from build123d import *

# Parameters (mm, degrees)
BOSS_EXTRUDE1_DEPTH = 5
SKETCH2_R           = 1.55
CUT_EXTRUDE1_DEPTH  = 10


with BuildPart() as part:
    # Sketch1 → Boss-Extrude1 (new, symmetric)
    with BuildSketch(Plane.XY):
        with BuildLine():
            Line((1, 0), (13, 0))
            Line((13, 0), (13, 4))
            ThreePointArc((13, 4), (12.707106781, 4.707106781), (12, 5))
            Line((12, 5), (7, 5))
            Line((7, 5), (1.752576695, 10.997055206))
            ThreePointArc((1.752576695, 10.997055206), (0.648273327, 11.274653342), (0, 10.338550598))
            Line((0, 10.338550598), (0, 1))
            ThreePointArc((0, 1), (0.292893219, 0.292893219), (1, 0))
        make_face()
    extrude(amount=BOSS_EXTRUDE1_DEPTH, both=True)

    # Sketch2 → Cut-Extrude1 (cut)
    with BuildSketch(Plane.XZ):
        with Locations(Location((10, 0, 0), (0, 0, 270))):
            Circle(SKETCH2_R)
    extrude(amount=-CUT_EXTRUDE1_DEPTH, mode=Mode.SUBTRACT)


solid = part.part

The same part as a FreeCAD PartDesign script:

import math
import FreeCAD as App
import Part
import Sketcher

V = App.Vector

doc = App.newDocument("Part")
body = doc.addObject("PartDesign::Body", "Body")

sketch1 = body.newObject("Sketcher::SketchObject", "Sketch")
sketch1.AttachmentSupport = (doc.getObject("XY_Plane"), [""])
sketch1.MapMode = "FlatFace"
sketch1.addGeometry([
    Part.LineSegment(V(1, 0, 0), V(13, 0, 0)),
    Part.LineSegment(V(13, 0, 0), V(13, 4, 0)),
    Part.ArcOfCircle(Part.Circle(V(12, 4, 0), V(0, 0, 1), 1), math.radians(0), math.radians(90)),
    Part.LineSegment(V(12, 5, 0), V(7, 5, 0)),
    Part.LineSegment(V(7, 5, 0), V(1.752577, 10.997055, 0)),
    Part.ArcOfCircle(Part.Circle(V(1, 10.338551, 0), V(0, 0, 1), 1), math.radians(41.185925), math.radians(180)),
    Part.LineSegment(V(0, 10.338551, 0), V(0, 1, 0)),
    Part.ArcOfCircle(Part.Circle(V(1, 1, 0), V(0, 0, 1), 1), math.radians(-180), math.radians(-90)),
], False)
sketch1.addConstraint([
    Sketcher.Constraint("Coincident", 0, 2, 1, 1),
    Sketcher.Constraint("Tangent", 1, 2, 2, 1),
    Sketcher.Constraint("Tangent", 2, 2, 3, 1),
    Sketcher.Constraint("Coincident", 3, 2, 4, 1),
    Sketcher.Constraint("Tangent", 4, 2, 5, 1),
    Sketcher.Constraint("Tangent", 5, 2, 6, 1),
    Sketcher.Constraint("Tangent", 6, 2, 7, 1),
    Sketcher.Constraint("Tangent", 7, 2, 0, 1),
    Sketcher.Constraint("Horizontal", 0),
    Sketcher.Constraint("Vertical", 1),
    Sketcher.Constraint("Horizontal", 3),
    Sketcher.Constraint("Vertical", 6),
    Sketcher.Constraint("Equal", 2, 5),
    Sketcher.Constraint("Equal", 5, 7),
    Sketcher.Constraint("PointOnObject", 0, 2, -1),
    Sketcher.Constraint("PointOnObject", 5, 2, -2),
    Sketcher.Constraint("Radius", 2, 1.0),
    Sketcher.Constraint("DistanceX", 0, 1, 0, 2, 12.0),
    Sketcher.Constraint("DistanceX", 3, 2, 3, 1, 5.0),
    Sketcher.Constraint("DistanceY", 1, 1, 1, 2, 4.0),
    Sketcher.Constraint("DistanceY", 6, 2, 6, 1, 9.338551),
])
pad1 = body.newObject("PartDesign::Pad", "Pad")
pad1.Profile = sketch1
pad1.Length = 10
pad1.Midplane = True

sketch2 = body.newObject("Sketcher::SketchObject", "Sketch001")
sketch2.AttachmentSupport = (doc.getObject("XZ_Plane"), [""])
sketch2.MapMode = "FlatFace"
sketch2.addGeometry(Part.Circle(V(10, 0, 0), V(0, 0, 1), 1.55), False)
sketch2.addConstraint([
    Sketcher.Constraint("PointOnObject", 0, 3, -1),
    Sketcher.Constraint("Diameter", 0, 3.1),
    Sketcher.Constraint("DistanceX", -1, 1, 0, 3, 10.0),
])
pocket1 = body.newObject("PartDesign::Pocket", "Pocket")
pocket1.Profile = sketch2
pocket1.Length = 10

doc.recompute()
